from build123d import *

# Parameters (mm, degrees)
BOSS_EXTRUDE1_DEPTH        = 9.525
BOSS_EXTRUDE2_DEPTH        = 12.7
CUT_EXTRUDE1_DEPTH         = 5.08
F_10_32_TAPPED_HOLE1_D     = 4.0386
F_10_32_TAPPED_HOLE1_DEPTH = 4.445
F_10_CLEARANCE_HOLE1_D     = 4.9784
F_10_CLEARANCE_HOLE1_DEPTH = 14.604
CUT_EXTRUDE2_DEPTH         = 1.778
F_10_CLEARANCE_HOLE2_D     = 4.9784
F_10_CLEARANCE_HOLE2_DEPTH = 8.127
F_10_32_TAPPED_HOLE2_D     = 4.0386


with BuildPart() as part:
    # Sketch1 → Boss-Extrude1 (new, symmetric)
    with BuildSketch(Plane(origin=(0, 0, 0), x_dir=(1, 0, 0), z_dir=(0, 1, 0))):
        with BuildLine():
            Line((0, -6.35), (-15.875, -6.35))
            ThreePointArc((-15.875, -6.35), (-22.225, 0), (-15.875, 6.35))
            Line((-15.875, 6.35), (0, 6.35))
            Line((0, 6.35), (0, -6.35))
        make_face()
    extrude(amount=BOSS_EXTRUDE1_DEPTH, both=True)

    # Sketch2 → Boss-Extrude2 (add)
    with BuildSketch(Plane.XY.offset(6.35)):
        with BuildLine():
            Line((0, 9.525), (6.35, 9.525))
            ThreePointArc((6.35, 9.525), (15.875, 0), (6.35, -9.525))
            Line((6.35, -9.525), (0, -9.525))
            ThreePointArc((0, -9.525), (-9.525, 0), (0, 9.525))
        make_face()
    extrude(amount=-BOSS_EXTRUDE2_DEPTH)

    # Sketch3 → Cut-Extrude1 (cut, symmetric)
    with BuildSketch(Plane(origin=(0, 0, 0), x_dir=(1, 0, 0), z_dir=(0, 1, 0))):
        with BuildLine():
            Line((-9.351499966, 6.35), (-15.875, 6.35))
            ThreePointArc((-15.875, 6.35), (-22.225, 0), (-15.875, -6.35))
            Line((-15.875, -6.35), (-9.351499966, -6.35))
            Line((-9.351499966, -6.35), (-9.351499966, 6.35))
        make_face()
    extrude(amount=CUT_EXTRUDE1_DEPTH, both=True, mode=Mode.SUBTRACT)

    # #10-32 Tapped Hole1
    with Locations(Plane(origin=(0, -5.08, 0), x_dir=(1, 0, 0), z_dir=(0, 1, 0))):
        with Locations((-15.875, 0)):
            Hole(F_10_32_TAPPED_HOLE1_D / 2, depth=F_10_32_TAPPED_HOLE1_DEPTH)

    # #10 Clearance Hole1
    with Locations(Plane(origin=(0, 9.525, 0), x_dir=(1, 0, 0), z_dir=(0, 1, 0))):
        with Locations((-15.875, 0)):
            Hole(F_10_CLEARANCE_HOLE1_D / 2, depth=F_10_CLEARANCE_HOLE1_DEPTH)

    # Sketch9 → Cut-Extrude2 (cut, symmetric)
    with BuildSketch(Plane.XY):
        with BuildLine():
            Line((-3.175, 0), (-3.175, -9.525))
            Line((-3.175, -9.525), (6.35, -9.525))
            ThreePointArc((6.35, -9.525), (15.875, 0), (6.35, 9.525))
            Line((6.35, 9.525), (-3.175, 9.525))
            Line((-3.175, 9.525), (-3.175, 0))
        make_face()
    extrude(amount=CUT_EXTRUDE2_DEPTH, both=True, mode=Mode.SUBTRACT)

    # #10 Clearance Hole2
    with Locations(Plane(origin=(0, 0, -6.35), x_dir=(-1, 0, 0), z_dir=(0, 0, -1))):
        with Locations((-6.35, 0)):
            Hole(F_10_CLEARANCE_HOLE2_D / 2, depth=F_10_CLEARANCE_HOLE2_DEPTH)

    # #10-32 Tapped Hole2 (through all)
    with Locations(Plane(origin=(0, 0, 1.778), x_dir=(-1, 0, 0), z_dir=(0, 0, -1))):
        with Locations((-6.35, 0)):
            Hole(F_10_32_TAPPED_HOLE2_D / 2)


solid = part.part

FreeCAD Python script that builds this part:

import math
import FreeCAD as App
import Part
import Sketcher
from FreeCAD import Vector
Q = App.Units.Quantity

doc = App.newDocument("Part")
body = doc.addObject("PartDesign::Body", "Body")

# Sketch on XZ plane
sketch1 = body.newObject("Sketcher::SketchObject", "Sketch")
sketch1.AttachmentSupport = (doc.getObject("XZ_Plane"), [""])
sketch1.MapMode = "FlatFace"
sketch1.addGeometry([
    Part.LineSegment(Vector(-15.875, 6.35, 0), Vector(0, 6.35, 0)),
    Part.LineSegment(Vector(0, 6.35, 0), Vector(0, -6.35, 0)),
    Part.LineSegment(Vector(0, -6.35, 0), Vector(-15.875, -6.35, 0)),
    Part.ArcOfCircle(Part.Circle(Vector(-15.875, 0, 0), Vector(0, 0, 1), 6.35), math.radians(90), math.radians(270)),
], False)
sketch1.addConstraint([
    Sketcher.Constraint("Coincident", 0, 2, 1, 1),
    Sketcher.Constraint("Coincident", 1, 2, 2, 1),
    Sketcher.Constraint("Tangent", 2, 2, 3, 2),
    Sketcher.Constraint("Tangent", 3, 1, 0, 1),
    Sketcher.Constraint("Horizontal", 0),
    Sketcher.Constraint("Vertical", 1),
    Sketcher.Constraint("Horizontal", 2),
    Sketcher.Constraint("Symmetric", 0, 2, 1, 2, -1, 1),
    Sketcher.Constraint("Radius", 3, Q("0.25 in")),
    Sketcher.Constraint("DistanceX", 0, 1, 0, 2, Q("0.625 in")),
])
pad1 = body.newObject("PartDesign::Pad", "Pad")
pad1.Profile = sketch1
pad1.Length = Q("0.75 in")
pad1.Midplane = True

# Sketch on XY plane
sketch2 = body.newObject("Sketcher::SketchObject", "Sketch001")
sketch2.AttachmentSupport = (doc.getObject("XY_Plane"), [""])
sketch2.MapMode = "FlatFace"
sketch2.AttachmentOffset = App.Placement(Vector(0, 0, 0.25 * 25.4), App.Rotation())
sketch2.addGeometry([
    Part.LineSegment(Vector(6.35, 9.525, 0), Vector(0, 9.525, 0)),
    Part.ArcOfCircle(Part.Circle(Vector(0, 0, 0), Vector(0, 0, 1), 9.525), math.radians(90), math.radians(270)),
    Part.LineSegment(Vector(0, -9.525, 0), Vector(6.35, -9.525, 0)),
    Part.ArcOfCircle(Part.Circle(Vector(6.35, 0, 0), Vector(0, 0, 1), 9.525), math.radians(-90), math.radians(90)),
], False)
sketch2.addConstraint([
    Sketcher.Constraint("Tangent", 0, 2, 1, 1),
    Sketcher.Constraint("Tangent", 1, 2, 2, 1),
    Sketcher.Constraint("Tangent", 2, 2, 3, 1),
    Sketcher.Constraint("Tangent", 3, 2, 0, 1),
    Sketcher.Constraint("Horizontal", 0),
    Sketcher.Constraint("Horizontal", 2),
    Sketcher.Constraint("Coincident", 1, 3, -1, 1),
    Sketcher.Constraint("Radius", 1, Q("0.375 in")),
    Sketcher.Constraint("DistanceX", 0, 2, 0, 1, Q("0.25 in")),
])
pad2 = body.newObject("PartDesign::Pad", "Pad001")
pad2.Profile = sketch2
pad2.Length = Q("0.5 in")
pad2.Reversed = True

# Sketch on XZ plane
sketch3 = body.newObject("Sketcher::SketchObject", "Sketch002")
sketch3.AttachmentSupport = (doc.getObject("XZ_Plane"), [""])
sketch3.MapMode = "FlatFace"
sketch3.addGeometry([
    Part.LineSegment(Vector(-9.3515, -6.35, 0), Vector(-15.875, -6.35, 0)),
    Part.ArcOfCircle(Part.Circle(Vector(-15.875, 0, 0), Vector(0, 0, 1), 6.35), math.radians(90), math.radians(270)),
    Part.LineSegment(Vector(-15.875, 6.35, 0), Vector(-9.3515, 6.35, 0)),
    Part.LineSegment(Vector(-9.3515, 6.35, 0), Vector(-9.3515, -6.35, 0)),
], False)
sketch3.addConstraint([
    Sketcher.Constraint("Tangent", 0, 2, 1, 2),
    Sketcher.Constraint("Tangent", 1, 1, 2, 1),
    Sketcher.Constraint("Coincident", 2, 2, 3, 1),
    Sketcher.Constraint("Coincident", 3, 2, 0, 1),
    Sketcher.Constraint("Horizontal", 0),
    Sketcher.Constraint("Horizontal", 2),
    Sketcher.Constraint("Vertical", 3),
    Sketcher.Constraint("PointOnObject", 1, 3, -1),
    Sketcher.Constraint("Radius", 1, Q("0.25 in")),
    Sketcher.Constraint("DistanceX", 1, 3, -1, 1, Q("0.625 in")),
    Sketcher.Constraint("DistanceX", 0, 2, 0, 1, 6.5235),
])
pocket1 = body.newObject("PartDesign::Pocket", "Pocket")
pocket1.Profile = sketch3
pocket1.Length = Q("0.4 in")
pocket1.Midplane = True

# Sketch on XZ plane
sketch4 = body.newObject("Sketcher::SketchObject", "Sketch003")
sketch4.AttachmentSupport = (doc.getObject("XZ_Plane"), [""])
sketch4.MapMode = "FlatFace"
sketch4.AttachmentOffset = App.Placement(Vector(0, 0, 0.2 * 25.4), App.Rotation())
sketch4.addGeometry(Part.Circle(Vector(-15.875, 0, 0), Vector(0, 0, 1), 2.0193), False)
sketch4.addConstraint([
    Sketcher.Constraint("PointOnObject", 0, 3, -1),
    Sketcher.Constraint("Diameter", 0, Q("0.159 in")),
    Sketcher.Constraint("DistanceX", 0, 3, -1, 1, Q("0.625 in")),
])
doc.recompute()
hole = body.newObject("PartDesign::Hole", "Hole")
hole.Profile = sketch4
hole.ThreadType = "None"
hole.Diameter = Q("0.159 in")
hole.DepthType = "Dimension"
hole.Depth = Q("0.175 in")
hole.DrillPoint = "Flat"
hole.Reversed = True

# Sketch on XZ plane
sketch5 = body.newObject("Sketcher::SketchObject", "Sketch004")
sketch5.AttachmentSupport = (doc.getObject("XZ_Plane"), [""])
sketch5.MapMode = "FlatFace"
sketch5.AttachmentOffset = App.Placement(Vector(0, 0, -0.375 * 25.4), App.Rotation())
sketch5.addGeometry(Part.Circle(Vector(-15.875, 0, 0), Vector(0, 0, 1), 2.4892), False)
sketch5.addConstraint([
    Sketcher.Constraint("PointOnObject", 0, 3, -1),
    Sketcher.Constraint("Diameter", 0, Q("0.196 in")),
    Sketcher.Constraint("DistanceX", 0, 3, -1, 1, Q("0.625 in")),
])
doc.recompute()
hole2 = body.newObject("PartDesign::Hole", "Hole001")
hole2.Profile = sketch5
hole2.ThreadType = "None"
hole2.Diameter = Q("0.196 in")
hole2.DepthType = "Dimension"
hole2.Depth = 14.604
hole2.DrillPoint = "Flat"
hole2.Reversed = True

# Sketch on XY plane
sketch6 = body.newObject("Sketcher::SketchObject", "Sketch005")
sketch6.AttachmentSupport = (doc.getObject("XY_Plane"), [""])
sketch6.MapMode = "FlatFace"
sketch6.addGeometry([
    Part.LineSegment(Vector(-3.175, -9.525, 0), Vector(6.35, -9.525, 0)),
    Part.ArcOfCircle(Part.Circle(Vector(6.35, 0, 0), Vector(0, 0, 1), 9.525), math.radians(-90), math.radians(90)),
    Part.LineSegment(Vector(6.35, 9.525, 0), Vector(-3.175, 9.525, 0)),
    Part.LineSegment(Vector(-3.175, 9.525, 0), Vector(-3.175, -9.525, 0)),
], False)
sketch6.addConstraint([
    Sketcher.Constraint("Tangent", 0, 2, 1, 1),
    Sketcher.Constraint("Tangent", 1, 2, 2, 1),
    Sketcher.Constraint("Coincident", 2, 2, 3, 1),
    Sketcher.Constraint("Coincident", 3, 2, 0, 1),
    Sketcher.Constraint("Horizontal", 0),
    Sketcher.Constraint("Horizontal", 2),
    Sketcher.Constraint("Vertical", 3),
    Sketcher.Constraint("PointOnObject", 1, 3, -1),
    Sketcher.Constraint("Radius", 1, Q("0.375 in")),
    Sketcher.Constraint("DistanceX", 0, 1, 0, 2, Q("0.375 in")),
    Sketcher.Constraint("DistanceX", -1, 1, 1, 3, Q("0.25 in")),
])
pocket2 = body.newObject("PartDesign::Pocket", "Pocket001")
pocket2.Profile = sketch6
pocket2.Length = Q("0.14 in")
pocket2.Midplane = True

# Sketch on XY plane
sketch7 = body.newObject("Sketcher::SketchObject", "Sketch006")
sketch7.AttachmentSupport = (doc.getObject("XY_Plane"), [""])
sketch7.MapMode = "FlatFace"
sketch7.AttachmentOffset = App.Placement(Vector(0, 0, -0.25 * 25.4), App.Rotation())
sketch7.addGeometry(Part.Circle(Vector(6.35, 0, 0), Vector(0, 0, 1), 2.4892), False)
sketch7.addConstraint([
    Sketcher.Constraint("PointOnObject", 0, 3, -1),
    Sketcher.Constraint("Diameter", 0, Q("0.196 in")),
    Sketcher.Constraint("DistanceX", -1, 1, 0, 3, Q("0.25 in")),
])
doc.recompute()
hole3 = body.newObject("PartDesign::Hole", "Hole002")
hole3.Profile = sketch7
hole3.ThreadType = "None"
hole3.Diameter = Q("0.196 in")
hole3.DepthType = "Dimension"
hole3.Depth = 8.127
hole3.DrillPoint = "Flat"
hole3.Reversed = True

# Sketch on XY plane
sketch8 = body.newObject("Sketcher::SketchObject", "Sketch007")
sketch8.AttachmentSupport = (doc.getObject("XY_Plane"), [""])
sketch8.MapMode = "FlatFace"
sketch8.AttachmentOffset = App.Placement(Vector(0, 0, 0.07 * 25.4), App.Rotation())
sketch8.addGeometry(Part.Circle(Vector(6.35, 0, 0), Vector(0, 0, 1), 2.0193), False)
sketch8.addConstraint([
    Sketcher.Constraint("PointOnObject", 0, 3, -1),
    Sketcher.Constraint("Diameter", 0, Q("0.159 in")),
    Sketcher.Constraint("DistanceX", -1, 1, 0, 3, Q("0.25 in")),
])
doc.recompute()
hole4 = body.newObject("PartDesign::Hole", "Hole003")
hole4.Profile = sketch8
hole4.ThreadType = "None"
hole4.Diameter = Q("0.159 in")
hole4.DepthType = "ThroughAll"
hole4.Reversed = True

doc.recompute()
